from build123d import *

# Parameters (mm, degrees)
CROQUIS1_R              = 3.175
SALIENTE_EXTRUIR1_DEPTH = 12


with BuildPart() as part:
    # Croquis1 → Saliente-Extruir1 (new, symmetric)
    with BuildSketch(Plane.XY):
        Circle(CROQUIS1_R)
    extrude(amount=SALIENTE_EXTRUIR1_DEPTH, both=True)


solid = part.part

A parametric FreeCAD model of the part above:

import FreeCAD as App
import Part
import Sketcher

V = App.Vector

doc = App.newDocument("Part")
body = doc.addObject("PartDesign::Body", "Body")

sketch1 = body.newObject("Sketcher::SketchObject", "Sketch")
sketch1.AttachmentSupport = (doc.getObject("XY_Plane"), [""])
sketch1.MapMode = "FlatFace"
sketch1.addGeometry(Part.Circle(V(0, 0, 0), V(0, 0, 1), 3.2), False)
sketch1.addConstraint(Sketcher.Constraint("Coincident", 0, 3, -1, 1))
sketch1.addConstraint(Sketcher.Constraint("Diameter", 0, 6.35))
pad1 = body.newObject("PartDesign::Pad", "Pad")
pad1.Profile = sketch1
pad1.Length = 24
pad1.Midplane = True

doc.recompute()
